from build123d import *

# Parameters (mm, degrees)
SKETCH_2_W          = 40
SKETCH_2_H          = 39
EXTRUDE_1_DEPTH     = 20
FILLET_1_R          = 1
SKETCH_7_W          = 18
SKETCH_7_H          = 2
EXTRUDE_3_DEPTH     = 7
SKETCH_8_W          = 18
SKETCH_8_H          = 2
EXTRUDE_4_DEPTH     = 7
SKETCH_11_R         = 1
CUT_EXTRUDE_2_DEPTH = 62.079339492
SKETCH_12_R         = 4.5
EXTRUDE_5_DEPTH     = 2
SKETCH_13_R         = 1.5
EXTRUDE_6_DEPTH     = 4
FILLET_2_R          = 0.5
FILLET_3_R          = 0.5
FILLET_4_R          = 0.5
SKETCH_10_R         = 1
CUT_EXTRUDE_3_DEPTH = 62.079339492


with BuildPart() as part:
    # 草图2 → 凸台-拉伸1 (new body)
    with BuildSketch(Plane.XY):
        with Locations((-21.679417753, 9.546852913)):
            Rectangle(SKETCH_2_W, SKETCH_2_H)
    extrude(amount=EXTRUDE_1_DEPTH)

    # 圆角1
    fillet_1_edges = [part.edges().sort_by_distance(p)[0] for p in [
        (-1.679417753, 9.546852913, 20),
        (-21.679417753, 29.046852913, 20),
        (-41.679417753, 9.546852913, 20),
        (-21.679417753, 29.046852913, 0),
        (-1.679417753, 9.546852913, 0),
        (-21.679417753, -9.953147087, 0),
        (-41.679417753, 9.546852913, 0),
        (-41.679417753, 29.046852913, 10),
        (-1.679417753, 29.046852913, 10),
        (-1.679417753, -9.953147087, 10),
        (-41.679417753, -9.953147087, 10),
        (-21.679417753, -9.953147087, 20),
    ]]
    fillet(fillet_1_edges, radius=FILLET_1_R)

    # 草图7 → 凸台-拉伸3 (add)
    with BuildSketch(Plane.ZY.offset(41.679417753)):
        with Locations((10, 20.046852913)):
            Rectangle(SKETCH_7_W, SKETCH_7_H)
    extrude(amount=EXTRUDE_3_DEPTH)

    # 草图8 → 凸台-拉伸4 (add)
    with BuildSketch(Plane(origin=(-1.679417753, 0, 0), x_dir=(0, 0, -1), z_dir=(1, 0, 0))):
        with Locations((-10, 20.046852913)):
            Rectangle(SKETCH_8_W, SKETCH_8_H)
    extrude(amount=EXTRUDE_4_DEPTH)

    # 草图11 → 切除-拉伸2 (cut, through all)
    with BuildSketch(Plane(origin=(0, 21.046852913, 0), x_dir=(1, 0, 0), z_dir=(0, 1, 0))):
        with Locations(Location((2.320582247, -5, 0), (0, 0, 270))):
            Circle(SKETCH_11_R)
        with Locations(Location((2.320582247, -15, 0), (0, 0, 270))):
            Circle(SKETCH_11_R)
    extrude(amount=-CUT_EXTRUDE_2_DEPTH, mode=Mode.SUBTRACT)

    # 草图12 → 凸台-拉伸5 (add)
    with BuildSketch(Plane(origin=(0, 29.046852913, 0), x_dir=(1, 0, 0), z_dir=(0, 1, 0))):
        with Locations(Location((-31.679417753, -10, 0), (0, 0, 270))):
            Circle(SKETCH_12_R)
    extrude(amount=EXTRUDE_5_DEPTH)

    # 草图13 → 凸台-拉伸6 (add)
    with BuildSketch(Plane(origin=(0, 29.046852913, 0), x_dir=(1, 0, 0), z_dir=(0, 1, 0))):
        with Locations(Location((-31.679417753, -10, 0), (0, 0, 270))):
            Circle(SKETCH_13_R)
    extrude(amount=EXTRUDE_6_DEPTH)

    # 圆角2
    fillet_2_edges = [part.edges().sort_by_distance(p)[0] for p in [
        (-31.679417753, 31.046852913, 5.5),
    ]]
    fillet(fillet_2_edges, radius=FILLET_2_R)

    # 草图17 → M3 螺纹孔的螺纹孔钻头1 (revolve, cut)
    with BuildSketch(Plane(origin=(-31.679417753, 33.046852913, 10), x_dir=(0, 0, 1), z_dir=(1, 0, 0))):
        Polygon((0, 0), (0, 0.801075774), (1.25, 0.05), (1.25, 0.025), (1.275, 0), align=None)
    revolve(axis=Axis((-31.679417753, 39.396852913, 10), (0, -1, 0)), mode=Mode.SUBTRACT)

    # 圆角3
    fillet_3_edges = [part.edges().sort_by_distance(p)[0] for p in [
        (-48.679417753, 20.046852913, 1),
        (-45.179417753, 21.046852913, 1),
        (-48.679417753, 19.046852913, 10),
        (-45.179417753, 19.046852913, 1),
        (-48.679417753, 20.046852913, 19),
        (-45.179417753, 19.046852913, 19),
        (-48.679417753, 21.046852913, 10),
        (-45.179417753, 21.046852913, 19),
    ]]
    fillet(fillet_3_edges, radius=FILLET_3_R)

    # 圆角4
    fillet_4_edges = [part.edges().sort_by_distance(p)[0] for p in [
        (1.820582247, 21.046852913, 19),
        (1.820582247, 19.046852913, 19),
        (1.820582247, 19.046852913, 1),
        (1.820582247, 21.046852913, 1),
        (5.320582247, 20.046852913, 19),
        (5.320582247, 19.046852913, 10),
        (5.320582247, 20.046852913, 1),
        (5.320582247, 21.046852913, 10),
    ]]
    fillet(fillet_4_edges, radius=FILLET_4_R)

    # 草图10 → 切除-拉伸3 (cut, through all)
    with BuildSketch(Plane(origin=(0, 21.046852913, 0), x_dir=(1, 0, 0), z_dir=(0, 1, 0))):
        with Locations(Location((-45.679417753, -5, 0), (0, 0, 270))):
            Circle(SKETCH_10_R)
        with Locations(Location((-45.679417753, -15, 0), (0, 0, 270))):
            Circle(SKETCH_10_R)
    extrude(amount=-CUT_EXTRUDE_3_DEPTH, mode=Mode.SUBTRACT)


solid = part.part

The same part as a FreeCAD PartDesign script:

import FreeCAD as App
import Part
import Sketcher

V = App.Vector
Q = App.Units.Quantity


def edges_at(feature, points):
    """Names of the edges that pass closest to the given points."""
    edges = feature.Shape.Edges
    near = lambda p: min(range(len(edges)), key=lambda i: edges[i].distToShape(Part.Vertex(*p))[0])
    return sorted({f"Edge{near(p) + 1}" for p in points})


def add_polygon(sketch, points):
    """Adds a closed chain of lines whose ends are joined by coincident constraints."""
    first, n = sketch.GeometryCount, len(points)
    for a, b in zip(points, points[1:] + points[:1]):
        sketch.addGeometry(Part.LineSegment(App.Vector(*a, 0), App.Vector(*b, 0)), False)
    for i in range(n):
        sketch.addConstraint(Sketcher.Constraint("Coincident", first + i, 2, first + (i + 1) % n, 1))

doc = App.newDocument("Part")
body = doc.addObject("PartDesign::Body", "Body")

# Sketch on XY plane
sketch1 = doc.addObject("Sketcher::SketchObject", "Sketch")
body.addObject(sketch1)
sketch1.AttachmentSupport = (doc.XY_Plane, [""])
sketch1.MapMode = "FlatFace"
add_polygon(sketch1, [(-41.679418, 29.046853), (-41.679418, -9.953147), (-1.679418, -9.953147), (-1.679418, 29.046853)])  # lines 0-3
sketch1.addConstraint([
    Sketcher.Constraint("Vertical", 0),
    Sketcher.Constraint("Horizontal", 1),
    Sketcher.Constraint("Vertical", 2),
    Sketcher.Constraint("Horizontal", 3),
    Sketcher.Constraint("DistanceX", 1, 1, 1, 2, Q("40 mm")),
    Sketcher.Constraint("DistanceY", 0, 2, 0, 1, Q("39 mm")),
    Sketcher.Constraint("DistanceX", 0, 2, -1, 1, Q("41.679418 mm")),
    Sketcher.Constraint("DistanceY", 0, 2, -1, 1, Q("9.953147 mm")),
])
pad1 = doc.addObject("PartDesign::Pad", "Pad")
body.addObject(pad1)
pad1.Profile = sketch1
pad1.Length = 20
doc.recompute()

fillet = doc.addObject("PartDesign::Fillet", "Fillet")
body.addObject(fillet)
fillet.Base = (pad1, ["Edge1"])
fillet.UseAllEdges = True
fillet.Radius = 1

# Sketch on YZ plane
sketch2 = doc.addObject("Sketcher::SketchObject", "Sketch001")
body.addObject(sketch2)
sketch2.AttachmentSupport = (doc.YZ_Plane, [""])
sketch2.MapMode = "FlatFace"
sketch2.AttachmentOffset = App.Placement(V(0, 0, -41.679418), App.Rotation())
add_polygon(sketch2, [(21.046853, 1), (19.046853, 1), (19.046853, 19), (21.046853, 19)])  # lines 0-3
sketch2.addConstraint([
    Sketcher.Constraint("Horizontal", 0),
    Sketcher.Constraint("Vertical", 1),
    Sketcher.Constraint("Horizontal", 2),
    Sketcher.Constraint("Vertical", 3),
    Sketcher.Constraint("DistanceX", 0, 2, 0, 1, Q("2 mm")),
    Sketcher.Constraint("DistanceY", 1, 1, 1, 2, Q("18 mm")),
    Sketcher.Constraint("DistanceY", -1, 1, 0, 2, Q("1 mm")),
    Sketcher.Constraint("DistanceX", -1, 1, 0, 2, Q("19.046853 mm")),
])
pad2 = doc.addObject("PartDesign::Pad", "Pad001")
body.addObject(pad2)
pad2.Profile = sketch2
pad2.Length = 7
pad2.Reversed = True

# Sketch on YZ plane
sketch3 = doc.addObject("Sketcher::SketchObject", "Sketch002")
body.addObject(sketch3)
sketch3.AttachmentSupport = (doc.YZ_Plane, [""])
sketch3.MapMode = "FlatFace"
sketch3.AttachmentOffset = App.Placement(V(0, 0, -1.679418), App.Rotation())
add_polygon(sketch3, [(21.046853, 19), (19.046853, 19), (19.046853, 1), (21.046853, 1)])  # lines 0-3
sketch3.addConstraint([
    Sketcher.Constraint("Horizontal", 0),
    Sketcher.Constraint("Vertical", 1),
    Sketcher.Constraint("Horizontal", 2),
    Sketcher.Constraint("Vertical", 3),
    Sketcher.Constraint("DistanceX", 0, 2, 0, 1, Q("2 mm")),
    Sketcher.Constraint("DistanceY", 1, 2, 1, 1, Q("18 mm")),
    Sketcher.Constraint("DistanceY", -1, 1, 0, 2, Q("19 mm")),
    Sketcher.Constraint("DistanceX", -1, 1, 0, 2, Q("19.046853 mm")),
])
pad3 = doc.addObject("PartDesign::Pad", "Pad002")
body.addObject(pad3)
pad3.Profile = sketch3
pad3.Length = 7

# Sketch on XZ plane
sketch4 = doc.addObject("Sketcher::SketchObject", "Sketch003")
body.addObject(sketch4)
sketch4.AttachmentSupport = (doc.XZ_Plane, [""])
sketch4.MapMode = "FlatFace"
sketch4.AttachmentOffset = App.Placement(V(0, 0, -21.046853), App.Rotation())
sketch4.addGeometry([
    Part.Circle(V(2.320582, 5, 0), V(0, 0, 1), 1),
    Part.Circle(V(2.320582, 15, 0), V(0, 0, 1), 1),
], False)
sketch4.addConstraint([
    Sketcher.Constraint("Equal", 0, 1),
    Sketcher.Constraint("Vertical", 0, 3, 1, 3),
    Sketcher.Constraint("Diameter", 0, Q("2 mm")),
    Sketcher.Constraint("DistanceY", -1, 1, 0, 3, Q("5 mm")),
    Sketcher.Constraint("DistanceY", -1, 1, 1, 3, Q("15 mm")),
    Sketcher.Constraint("DistanceX", -1, 1, 0, 3, Q("2.320582 mm")),
])
pocket1 = doc.addObject("PartDesign::Pocket", "Pocket")
body.addObject(pocket1)
pocket1.Profile = sketch4
pocket1.Type = "ThroughAll"
pocket1.Reversed = True

# Sketch on XZ plane
sketch5 = doc.addObject("Sketcher::SketchObject", "Sketch004")
body.addObject(sketch5)
sketch5.AttachmentSupport = (doc.XZ_Plane, [""])
sketch5.MapMode = "FlatFace"
sketch5.AttachmentOffset = App.Placement(V(0, 0, -29.046853), App.Rotation())
sketch5.addGeometry(Part.Circle(V(-31.679418, 10, 0), V(0, 0, 1), 4.5), False)
sketch5.addConstraint([
    Sketcher.Constraint("Diameter", 0, Q("9 mm")),
    Sketcher.Constraint("DistanceY", -1, 1, 0, 3, Q("10 mm")),
    Sketcher.Constraint("DistanceX", 0, 3, -1, 1, Q("31.679418 mm")),
])
pad4 = doc.addObject("PartDesign::Pad", "Pad003")
body.addObject(pad4)
pad4.Profile = sketch5
pad4.Length = 2
pad4.Reversed = True

# Sketch on XZ plane
sketch6 = doc.addObject("Sketcher::SketchObject", "Sketch005")
body.addObject(sketch6)
sketch6.AttachmentSupport = (doc.XZ_Plane, [""])
sketch6.MapMode = "FlatFace"
sketch6.AttachmentOffset = App.Placement(V(0, 0, -29.046853), App.Rotation())
sketch6.addGeometry(Part.Circle(V(-31.679418, 10, 0), V(0, 0, 1), 1.5), False)
sketch6.addConstraint([
    Sketcher.Constraint("Diameter", 0, Q("3 mm")),
    Sketcher.Constraint("DistanceY", -1, 1, 0, 3, Q("10 mm")),
    Sketcher.Constraint("DistanceX", 0, 3, -1, 1, Q("31.679418 mm")),
])
pad5 = doc.addObject("PartDesign::Pad", "Pad004")
body.addObject(pad5)
pad5.Profile = sketch6
pad5.Length = 4
pad5.Reversed = True
doc.recompute()

fillet2 = doc.addObject("PartDesign::Fillet", "Fillet001")
body.addObject(fillet2)
fillet2.Base = (pad5, edges_at(pad5, [(-31.679, 31.047, 5.5)]))
fillet2.Radius = 0.5

# Sketch on YZ plane
sketch7 = doc.addObject("Sketcher::SketchObject", "Sketch006")
body.addObject(sketch7)
sketch7.AttachmentSupport = (doc.YZ_Plane, [""])
sketch7.MapMode = "FlatFace"
sketch7.AttachmentOffset = App.Placement(V(0, 0, -31.679418), App.Rotation())
add_polygon(sketch7, [(32.245777, 10), (33.046853, 10), (33.046853, 11.275), (33.021853, 11.25), (32.996853, 11.25)])  # lines 0-4
sketch7.addGeometry(Part.LineSegment(V(33.046853, 10, 0), V(32.245777, 10, 0)), True)  # axis
sketch7.addConstraint([
    Sketcher.Constraint("Horizontal", 0),
    Sketcher.Constraint("Vertical", 1),
    Sketcher.Constraint("Horizontal", 3),
    Sketcher.Constraint("Horizontal", 5),
    Sketcher.Constraint("Coincident", 5, 1, 0, 2),
    Sketcher.Constraint("Equal", 0, 5),
    Sketcher.Constraint("Angle", 2, Q("-135 deg")),
    Sketcher.Constraint("Angle", 4, Q("-121 deg")),
    Sketcher.Constraint("DistanceY", -1, 1, 0, 2, Q("10 mm")),
    Sketcher.Constraint("DistanceX", 3, 2, 3, 1, Q("0.025 mm")),
    Sketcher.Constraint("DistanceY", 1, 1, 1, 2, Q("1.275 mm")),
    Sketcher.Constraint("DistanceY", -1, 1, 2, 2, Q("11.25 mm")),
    Sketcher.Constraint("DistanceX", -1, 1, 0, 2, Q("33.046853 mm")),
])
groove = doc.addObject("PartDesign::Groove", "Groove")
body.addObject(groove)
groove.Profile = sketch7
groove.ReferenceAxis = (sketch7, ["Axis0"])
groove.Angle = 360
doc.recompute()

fillet3 = doc.addObject("PartDesign::Fillet", "Fillet002")
body.addObject(fillet3)
fillet3.Base = (groove, edges_at(groove, [
    (-48.679, 20.047, 1),
    (-45.179, 21.047, 1),
    (-48.679, 19.047, 10),
    (-45.179, 19.047, 1),
    (-48.679, 20.047, 19),
    (-45.179, 19.047, 19),
    (-48.679, 21.047, 10),
    (-45.179, 21.047, 19),
]))
fillet3.Radius = 0.5
doc.recompute()

fillet4 = doc.addObject("PartDesign::Fillet", "Fillet003")
body.addObject(fillet4)
fillet4.Base = (fillet3, edges_at(fillet3, [
    (1.821, 21.047, 19),
    (1.821, 19.047, 19),
    (1.821, 19.047, 1),
    (1.821, 21.047, 1),
    (5.321, 20.047, 19),
    (5.321, 19.047, 10),
    (5.321, 20.047, 1),
    (5.321, 21.047, 10),
]))
fillet4.Radius = 0.5

# Sketch on XZ plane
sketch8 = doc.addObject("Sketcher::SketchObject", "Sketch007")
body.addObject(sketch8)
sketch8.AttachmentSupport = (doc.XZ_Plane, [""])
sketch8.MapMode = "FlatFace"
sketch8.AttachmentOffset = App.Placement(V(0, 0, -21.046853), App.Rotation())
sketch8.addGeometry([
    Part.Circle(V(-45.679418, 5, 0), V(0, 0, 1), 1),
    Part.Circle(V(-45.679418, 15, 0), V(0, 0, 1), 1),
], False)
sketch8.addConstraint([
    Sketcher.Constraint("Equal", 0, 1),
    Sketcher.Constraint("Vertical", 0, 3, 1, 3),
    Sketcher.Constraint("Diameter", 0, Q("2 mm")),
    Sketcher.Constraint("DistanceY", -1, 1, 0, 3, Q("5 mm")),
    Sketcher.Constraint("DistanceY", -1, 1, 1, 3, Q("15 mm")),
    Sketcher.Constraint("DistanceX", 0, 3, -1, 1, Q("45.679418 mm")),
])
pocket2 = doc.addObject("PartDesign::Pocket", "Pocket001")
body.addObject(pocket2)
pocket2.Profile = sketch8
pocket2.Type = "ThroughAll"
pocket2.Reversed = True

doc.recompute()
